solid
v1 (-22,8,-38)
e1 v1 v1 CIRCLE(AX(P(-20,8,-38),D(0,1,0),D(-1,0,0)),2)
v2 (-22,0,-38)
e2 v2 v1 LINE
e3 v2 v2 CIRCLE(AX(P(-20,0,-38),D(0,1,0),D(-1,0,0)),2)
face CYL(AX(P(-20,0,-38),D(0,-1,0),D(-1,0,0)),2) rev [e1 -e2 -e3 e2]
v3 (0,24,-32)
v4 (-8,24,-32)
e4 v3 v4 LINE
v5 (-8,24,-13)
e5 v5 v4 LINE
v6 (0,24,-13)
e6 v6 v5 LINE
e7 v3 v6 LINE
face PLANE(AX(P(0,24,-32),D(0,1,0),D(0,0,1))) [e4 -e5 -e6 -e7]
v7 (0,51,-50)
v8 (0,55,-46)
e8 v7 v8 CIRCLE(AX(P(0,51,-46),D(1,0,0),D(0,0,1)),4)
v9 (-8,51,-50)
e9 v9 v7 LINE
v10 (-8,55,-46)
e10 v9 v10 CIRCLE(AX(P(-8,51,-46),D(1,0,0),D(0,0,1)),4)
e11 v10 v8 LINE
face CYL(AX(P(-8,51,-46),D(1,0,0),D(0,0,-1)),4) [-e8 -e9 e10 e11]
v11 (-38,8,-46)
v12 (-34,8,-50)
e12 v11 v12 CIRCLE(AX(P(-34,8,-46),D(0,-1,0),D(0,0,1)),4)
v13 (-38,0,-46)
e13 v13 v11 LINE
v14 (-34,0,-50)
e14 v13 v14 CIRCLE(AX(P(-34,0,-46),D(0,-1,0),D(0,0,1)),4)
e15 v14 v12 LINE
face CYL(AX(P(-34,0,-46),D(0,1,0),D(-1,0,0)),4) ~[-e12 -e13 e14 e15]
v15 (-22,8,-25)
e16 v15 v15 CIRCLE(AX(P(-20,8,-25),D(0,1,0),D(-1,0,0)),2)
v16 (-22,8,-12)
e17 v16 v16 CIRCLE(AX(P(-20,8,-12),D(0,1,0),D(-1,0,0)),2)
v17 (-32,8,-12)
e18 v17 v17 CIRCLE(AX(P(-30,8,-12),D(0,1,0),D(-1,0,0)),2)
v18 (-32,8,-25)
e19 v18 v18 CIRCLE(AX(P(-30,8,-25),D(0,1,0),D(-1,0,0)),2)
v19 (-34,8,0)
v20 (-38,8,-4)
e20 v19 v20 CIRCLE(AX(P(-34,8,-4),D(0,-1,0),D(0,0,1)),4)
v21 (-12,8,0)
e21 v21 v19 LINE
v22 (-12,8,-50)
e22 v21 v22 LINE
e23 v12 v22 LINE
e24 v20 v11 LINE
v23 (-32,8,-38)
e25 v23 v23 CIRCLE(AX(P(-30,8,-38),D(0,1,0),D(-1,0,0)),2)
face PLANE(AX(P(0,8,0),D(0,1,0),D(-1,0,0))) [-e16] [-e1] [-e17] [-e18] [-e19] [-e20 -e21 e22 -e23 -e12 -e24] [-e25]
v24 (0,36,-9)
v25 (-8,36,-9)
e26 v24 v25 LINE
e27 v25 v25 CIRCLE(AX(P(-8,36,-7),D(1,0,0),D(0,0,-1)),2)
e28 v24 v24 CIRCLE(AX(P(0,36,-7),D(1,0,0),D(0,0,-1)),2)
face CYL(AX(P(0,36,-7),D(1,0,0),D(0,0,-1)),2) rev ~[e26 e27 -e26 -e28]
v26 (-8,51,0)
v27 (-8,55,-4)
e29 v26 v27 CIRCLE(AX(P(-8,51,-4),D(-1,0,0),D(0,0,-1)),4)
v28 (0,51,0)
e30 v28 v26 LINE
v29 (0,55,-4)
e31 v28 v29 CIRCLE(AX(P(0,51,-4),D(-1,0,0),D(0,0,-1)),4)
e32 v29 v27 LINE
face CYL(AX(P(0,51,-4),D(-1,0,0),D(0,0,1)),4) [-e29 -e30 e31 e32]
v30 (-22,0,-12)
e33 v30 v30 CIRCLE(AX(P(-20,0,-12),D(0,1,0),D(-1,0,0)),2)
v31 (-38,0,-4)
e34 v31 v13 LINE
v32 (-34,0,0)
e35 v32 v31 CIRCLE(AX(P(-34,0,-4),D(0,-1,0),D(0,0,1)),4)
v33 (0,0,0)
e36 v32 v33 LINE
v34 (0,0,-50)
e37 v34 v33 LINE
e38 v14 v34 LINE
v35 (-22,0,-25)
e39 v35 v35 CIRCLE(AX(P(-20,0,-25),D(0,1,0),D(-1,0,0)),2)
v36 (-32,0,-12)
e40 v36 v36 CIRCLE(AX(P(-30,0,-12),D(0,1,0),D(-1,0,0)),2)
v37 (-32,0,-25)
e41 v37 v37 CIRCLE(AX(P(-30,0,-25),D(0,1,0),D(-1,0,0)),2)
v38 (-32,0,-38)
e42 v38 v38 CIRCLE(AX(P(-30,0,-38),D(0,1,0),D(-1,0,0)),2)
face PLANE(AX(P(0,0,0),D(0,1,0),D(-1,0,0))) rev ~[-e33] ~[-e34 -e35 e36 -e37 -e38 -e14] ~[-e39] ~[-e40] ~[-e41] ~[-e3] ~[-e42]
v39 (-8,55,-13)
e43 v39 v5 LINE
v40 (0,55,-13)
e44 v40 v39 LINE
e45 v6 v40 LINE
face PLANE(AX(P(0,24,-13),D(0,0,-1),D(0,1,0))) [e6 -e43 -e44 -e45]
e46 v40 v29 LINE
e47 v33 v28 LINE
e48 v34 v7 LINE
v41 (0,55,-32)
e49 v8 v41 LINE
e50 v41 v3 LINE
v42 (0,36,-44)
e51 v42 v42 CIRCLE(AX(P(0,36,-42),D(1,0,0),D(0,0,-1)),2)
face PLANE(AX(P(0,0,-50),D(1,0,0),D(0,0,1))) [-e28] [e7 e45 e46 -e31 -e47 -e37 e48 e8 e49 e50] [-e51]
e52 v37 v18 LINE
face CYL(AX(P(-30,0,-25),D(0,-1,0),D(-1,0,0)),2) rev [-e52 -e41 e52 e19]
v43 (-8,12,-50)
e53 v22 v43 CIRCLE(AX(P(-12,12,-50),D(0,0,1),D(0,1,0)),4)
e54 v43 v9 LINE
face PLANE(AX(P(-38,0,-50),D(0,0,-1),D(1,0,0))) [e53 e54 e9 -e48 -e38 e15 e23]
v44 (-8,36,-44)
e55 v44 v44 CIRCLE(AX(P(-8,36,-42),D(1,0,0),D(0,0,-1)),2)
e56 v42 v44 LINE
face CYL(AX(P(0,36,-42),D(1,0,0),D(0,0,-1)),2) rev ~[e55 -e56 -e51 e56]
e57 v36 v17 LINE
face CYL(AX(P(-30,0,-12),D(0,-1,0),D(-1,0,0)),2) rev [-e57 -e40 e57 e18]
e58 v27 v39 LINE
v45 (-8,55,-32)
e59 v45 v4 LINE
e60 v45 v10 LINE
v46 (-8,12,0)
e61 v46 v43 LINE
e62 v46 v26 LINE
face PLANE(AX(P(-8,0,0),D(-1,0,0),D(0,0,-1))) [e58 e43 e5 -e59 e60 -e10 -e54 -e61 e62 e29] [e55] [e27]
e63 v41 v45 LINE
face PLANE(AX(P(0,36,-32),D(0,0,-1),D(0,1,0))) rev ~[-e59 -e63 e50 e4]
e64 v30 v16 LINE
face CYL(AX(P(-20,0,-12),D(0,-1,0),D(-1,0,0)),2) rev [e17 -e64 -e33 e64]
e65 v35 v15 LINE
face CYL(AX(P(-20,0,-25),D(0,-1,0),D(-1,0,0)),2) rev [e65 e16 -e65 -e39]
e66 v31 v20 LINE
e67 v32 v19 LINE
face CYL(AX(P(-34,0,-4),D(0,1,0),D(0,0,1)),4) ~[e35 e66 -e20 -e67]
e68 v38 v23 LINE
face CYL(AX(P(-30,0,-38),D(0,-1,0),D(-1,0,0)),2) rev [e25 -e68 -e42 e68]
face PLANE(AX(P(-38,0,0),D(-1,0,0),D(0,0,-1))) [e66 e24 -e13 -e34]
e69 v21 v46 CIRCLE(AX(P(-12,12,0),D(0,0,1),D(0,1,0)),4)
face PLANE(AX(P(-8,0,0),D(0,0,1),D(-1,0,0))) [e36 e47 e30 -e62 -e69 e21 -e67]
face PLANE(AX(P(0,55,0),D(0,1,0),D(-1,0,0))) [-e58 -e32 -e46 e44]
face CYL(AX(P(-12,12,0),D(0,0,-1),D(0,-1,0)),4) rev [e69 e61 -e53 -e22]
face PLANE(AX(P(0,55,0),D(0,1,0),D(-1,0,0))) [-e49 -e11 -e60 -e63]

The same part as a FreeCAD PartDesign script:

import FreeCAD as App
import Part
import Sketcher

V = App.Vector


def edges_at(feature, points):
    """Names of the edges that pass closest to the given points."""
    edges = feature.Shape.Edges
    near = lambda p: min(range(len(edges)), key=lambda i: edges[i].distToShape(Part.Vertex(*p))[0])
    return sorted({f"Edge{near(p) + 1}" for p in points})


def add_polygon(sketch, points):
    """Adds a closed chain of lines whose ends are joined by coincident constraints."""
    first, n = sketch.GeometryCount, len(points)
    for a, b in zip(points, points[1:] + points[:1]):
        sketch.addGeometry(Part.LineSegment(App.Vector(*a, 0), App.Vector(*b, 0)), False)
    for i in range(n):
        sketch.addConstraint(Sketcher.Constraint("Coincident", first + i, 2, first + (i + 1) % n, 1))

doc = App.newDocument("Part")
body = doc.addObject("PartDesign::Body", "Body")

sketch1 = body.newObject("Sketcher::SketchObject", "Sketch")
sketch1.AttachmentSupport = (doc.getObject("XZ_Plane"), [""])
sketch1.MapMode = "FlatFace"
add_polygon(sketch1, [(-38, 0), (-8, 0), (-8, -50), (-38, -50)])
sketch1.addGeometry(Part.Circle(V(-20, -38, 0), V(0, 0, 1), 2), False)
sketch1.addGeometry(Part.Circle(V(-30, -38, 0), V(0, 0, 1), 2), False)
sketch1.addGeometry(Part.Circle(V(-20, -25, 0), V(0, 0, 1), 2), False)
sketch1.addGeometry(Part.Circle(V(-30, -25, 0), V(0, 0, 1), 2), False)
sketch1.addGeometry(Part.Circle(V(-20, -12, 0), V(0, 0, 1), 2), False)
sketch1.addGeometry(Part.Circle(V(-30, -12, 0), V(0, 0, 1), 2), False)
sketch1.addConstraint([
    Sketcher.Constraint("Horizontal", 0),
    Sketcher.Constraint("Vertical", 1),
    Sketcher.Constraint("Horizontal", 2),
    Sketcher.Constraint("Vertical", 3),
    Sketcher.Constraint("Equal", 4, 5),
    Sketcher.Constraint("Equal", 5, 6),
    Sketcher.Constraint("Equal", 6, 7),
    Sketcher.Constraint("Equal", 7, 8),
    Sketcher.Constraint("Equal", 8, 9),
    Sketcher.Constraint("PointOnObject", 0, 2, -1),
    Sketcher.Constraint("Horizontal", 4, 3, 5, 3),
    Sketcher.Constraint("Horizontal", 6, 3, 7, 3),
    Sketcher.Constraint("Horizontal", 8, 3, 9, 3),
    Sketcher.Constraint("Vertical", 4, 3, 6, 3),
    Sketcher.Constraint("Vertical", 5, 3, 7, 3),
    Sketcher.Constraint("Vertical", 6, 3, 8, 3),
    Sketcher.Constraint("Vertical", 7, 3, 9, 3),
    Sketcher.Constraint("DistanceX", 0, 1, 0, 2, 30.0),
    Sketcher.Constraint("DistanceY", 1, 2, 1, 1, 50.0),
    Sketcher.Constraint("Diameter", 4, 4.0),
    Sketcher.Constraint("DistanceX", 5, 3, -1, 1, 30.0),
    Sketcher.Constraint("DistanceX", 0, 2, -1, 1, 8.0),
    Sketcher.Constraint("DistanceX", 4, 3, -1, 1, 20.0),
    Sketcher.Constraint("DistanceY", 4, 3, -1, 1, 38.0),
    Sketcher.Constraint("DistanceY", 6, 3, -1, 1, 25.0),
    Sketcher.Constraint("DistanceY", 8, 3, -1, 1, 12.0),
])
pad1 = body.newObject("PartDesign::Pad", "Pad")
pad1.Profile = sketch1
pad1.Length = 8
pad1.Reversed = True

sketch2 = body.newObject("Sketcher::SketchObject", "Sketch001")
sketch2.AttachmentSupport = (doc.getObject("XZ_Plane"), [""])
sketch2.MapMode = "FlatFace"
add_polygon(sketch2, [(-8, 0), (0, 0), (0, -50), (-8, -50)])
sketch2.addConstraint([
    Sketcher.Constraint("Horizontal", 0),
    Sketcher.Constraint("Vertical", 1),
    Sketcher.Constraint("Horizontal", 2),
    Sketcher.Constraint("Vertical", 3),
    Sketcher.Constraint("Coincident", 0, 2, -1, 1),
    Sketcher.Constraint("DistanceX", 0, 1, 0, 2, 8.0),
    Sketcher.Constraint("DistanceY", 1, 2, 1, 1, 50.0),
])
pad2 = body.newObject("PartDesign::Pad", "Pad001")
pad2.Profile = sketch2
pad2.Length = 55
pad2.Reversed = True
doc.recompute()

fillet = body.newObject("PartDesign::Fillet", "Fillet")
fillet.Base = (pad2, edges_at(pad2, [(-8, 8, -25)]))
fillet.Radius = 4

sketch3 = body.newObject("Sketcher::SketchObject", "Sketch002")
sketch3.AttachmentSupport = (doc.getObject("YZ_Plane"), [""])
sketch3.MapMode = "FlatFace"
add_polygon(sketch3, [(24, -32), (55, -32), (55, -13), (24, -13)])
sketch3.addGeometry(Part.Circle(V(36, -7, 0), V(0, 0, 1), 2), False)
sketch3.addGeometry(Part.Circle(V(36, -42, 0), V(0, 0, 1), 2), False)
sketch3.addConstraint([
    Sketcher.Constraint("Horizontal", 0),
    Sketcher.Constraint("Vertical", 1),
    Sketcher.Constraint("Horizontal", 2),
    Sketcher.Constraint("Vertical", 3),
    Sketcher.Constraint("Equal", 4, 5),
    Sketcher.Constraint("Vertical", 4, 3, 5, 3),
    Sketcher.Constraint("DistanceY", 1, 1, 1, 2, 19.0),
    Sketcher.Constraint("Diameter", 4, 4.0),
    Sketcher.Constraint("DistanceY", 4, 3, -1, 1, 7.0),
    Sketcher.Constraint("DistanceY", 5, 3, 4, 3, 35.0),
    Sketcher.Constraint("DistanceX", 5, 3, 0, 2, 19.0),
    Sketcher.Constraint("DistanceX", 0, 1, 0, 2, 31.0),
    Sketcher.Constraint("DistanceX", -1, 1, 4, 3, 36.0),
    Sketcher.Constraint("DistanceY", 0, 2, -1, 1, 32.0),
])
pocket1 = body.newObject("PartDesign::Pocket", "Pocket")
pocket1.Profile = sketch3
pocket1.Length = 10
doc.recompute()

fillet2 = body.newObject("PartDesign::Fillet", "Fillet001")
fillet2.Base = (pocket1, edges_at(pocket1, [
    (-4, 55, -50),
    (-4, 55, 0),
    (-38, 4, 0),
    (-38, 4, -50),
]))
fillet2.Radius = 4

doc.recompute()
